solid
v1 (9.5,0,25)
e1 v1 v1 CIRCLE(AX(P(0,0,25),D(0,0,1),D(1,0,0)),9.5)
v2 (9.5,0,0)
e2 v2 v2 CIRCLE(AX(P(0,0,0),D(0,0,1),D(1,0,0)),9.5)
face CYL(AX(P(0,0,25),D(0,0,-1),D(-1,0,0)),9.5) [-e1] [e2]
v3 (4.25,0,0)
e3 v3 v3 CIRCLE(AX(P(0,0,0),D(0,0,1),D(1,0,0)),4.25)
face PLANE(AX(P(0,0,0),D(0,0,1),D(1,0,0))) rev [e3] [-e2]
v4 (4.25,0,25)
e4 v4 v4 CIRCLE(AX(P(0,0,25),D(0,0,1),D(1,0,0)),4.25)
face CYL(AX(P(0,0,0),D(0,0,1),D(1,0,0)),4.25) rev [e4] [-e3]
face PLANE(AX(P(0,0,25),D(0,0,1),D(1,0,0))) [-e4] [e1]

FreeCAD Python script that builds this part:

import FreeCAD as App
import Part
import Sketcher

V = App.Vector

doc = App.newDocument("Part")
body = doc.addObject("PartDesign::Body", "Body")

sketch1 = body.newObject("Sketcher::SketchObject", "Sketch")
sketch1.AttachmentSupport = (doc.getObject("XY_Plane"), [""])
sketch1.MapMode = "FlatFace"
sketch1.addGeometry(Part.Circle(V(0, 0, 0), V(0, 0, 1), 10), False)
sketch1.addConstraint([
    Sketcher.Constraint("Coincident", 0, 3, -1, 1),
    Sketcher.Constraint("Diameter", 0, 19.0),
])
pad1 = body.newObject("PartDesign::Pad", "Pad")
pad1.Profile = sketch1
pad1.Length = 25

sketch2 = body.newObject("Sketcher::SketchObject", "Sketch001")
sketch2.AttachmentSupport = (doc.getObject("XY_Plane"), [""])
sketch2.MapMode = "FlatFace"
sketch2.addGeometry(Part.Circle(V(0, 0, 0), V(0, 0, 1), 10), False)
sketch2.addConstraint([
    Sketcher.Constraint("Coincident", 0, 3, -1, 1),
    Sketcher.Constraint("Diameter", 0, 19.0),
])
pad2 = body.newObject("PartDesign::Pad", "Pad001")
pad2.Profile = sketch2
pad2.Length = 25

sketch3 = body.newObject("Sketcher::SketchObject", "Sketch002")
sketch3.AttachmentSupport = (doc.getObject("XY_Plane"), [""])
sketch3.MapMode = "FlatFace"
sketch3.AttachmentOffset = App.Placement(V(0, 0, 25), App.Rotation())
sketch3.addGeometry(Part.Circle(V(0, 0, 0), V(0, 0, 1), 4.2), False)
sketch3.addConstraint([
    Sketcher.Constraint("Coincident", 0, 3, -1, 1),
    Sketcher.Constraint("Diameter", 0, 8.5),
])
pocket1 = body.newObject("PartDesign::Pocket", "Pocket")
pocket1.Profile = sketch3
pocket1.Length = 25

doc.recompute()
